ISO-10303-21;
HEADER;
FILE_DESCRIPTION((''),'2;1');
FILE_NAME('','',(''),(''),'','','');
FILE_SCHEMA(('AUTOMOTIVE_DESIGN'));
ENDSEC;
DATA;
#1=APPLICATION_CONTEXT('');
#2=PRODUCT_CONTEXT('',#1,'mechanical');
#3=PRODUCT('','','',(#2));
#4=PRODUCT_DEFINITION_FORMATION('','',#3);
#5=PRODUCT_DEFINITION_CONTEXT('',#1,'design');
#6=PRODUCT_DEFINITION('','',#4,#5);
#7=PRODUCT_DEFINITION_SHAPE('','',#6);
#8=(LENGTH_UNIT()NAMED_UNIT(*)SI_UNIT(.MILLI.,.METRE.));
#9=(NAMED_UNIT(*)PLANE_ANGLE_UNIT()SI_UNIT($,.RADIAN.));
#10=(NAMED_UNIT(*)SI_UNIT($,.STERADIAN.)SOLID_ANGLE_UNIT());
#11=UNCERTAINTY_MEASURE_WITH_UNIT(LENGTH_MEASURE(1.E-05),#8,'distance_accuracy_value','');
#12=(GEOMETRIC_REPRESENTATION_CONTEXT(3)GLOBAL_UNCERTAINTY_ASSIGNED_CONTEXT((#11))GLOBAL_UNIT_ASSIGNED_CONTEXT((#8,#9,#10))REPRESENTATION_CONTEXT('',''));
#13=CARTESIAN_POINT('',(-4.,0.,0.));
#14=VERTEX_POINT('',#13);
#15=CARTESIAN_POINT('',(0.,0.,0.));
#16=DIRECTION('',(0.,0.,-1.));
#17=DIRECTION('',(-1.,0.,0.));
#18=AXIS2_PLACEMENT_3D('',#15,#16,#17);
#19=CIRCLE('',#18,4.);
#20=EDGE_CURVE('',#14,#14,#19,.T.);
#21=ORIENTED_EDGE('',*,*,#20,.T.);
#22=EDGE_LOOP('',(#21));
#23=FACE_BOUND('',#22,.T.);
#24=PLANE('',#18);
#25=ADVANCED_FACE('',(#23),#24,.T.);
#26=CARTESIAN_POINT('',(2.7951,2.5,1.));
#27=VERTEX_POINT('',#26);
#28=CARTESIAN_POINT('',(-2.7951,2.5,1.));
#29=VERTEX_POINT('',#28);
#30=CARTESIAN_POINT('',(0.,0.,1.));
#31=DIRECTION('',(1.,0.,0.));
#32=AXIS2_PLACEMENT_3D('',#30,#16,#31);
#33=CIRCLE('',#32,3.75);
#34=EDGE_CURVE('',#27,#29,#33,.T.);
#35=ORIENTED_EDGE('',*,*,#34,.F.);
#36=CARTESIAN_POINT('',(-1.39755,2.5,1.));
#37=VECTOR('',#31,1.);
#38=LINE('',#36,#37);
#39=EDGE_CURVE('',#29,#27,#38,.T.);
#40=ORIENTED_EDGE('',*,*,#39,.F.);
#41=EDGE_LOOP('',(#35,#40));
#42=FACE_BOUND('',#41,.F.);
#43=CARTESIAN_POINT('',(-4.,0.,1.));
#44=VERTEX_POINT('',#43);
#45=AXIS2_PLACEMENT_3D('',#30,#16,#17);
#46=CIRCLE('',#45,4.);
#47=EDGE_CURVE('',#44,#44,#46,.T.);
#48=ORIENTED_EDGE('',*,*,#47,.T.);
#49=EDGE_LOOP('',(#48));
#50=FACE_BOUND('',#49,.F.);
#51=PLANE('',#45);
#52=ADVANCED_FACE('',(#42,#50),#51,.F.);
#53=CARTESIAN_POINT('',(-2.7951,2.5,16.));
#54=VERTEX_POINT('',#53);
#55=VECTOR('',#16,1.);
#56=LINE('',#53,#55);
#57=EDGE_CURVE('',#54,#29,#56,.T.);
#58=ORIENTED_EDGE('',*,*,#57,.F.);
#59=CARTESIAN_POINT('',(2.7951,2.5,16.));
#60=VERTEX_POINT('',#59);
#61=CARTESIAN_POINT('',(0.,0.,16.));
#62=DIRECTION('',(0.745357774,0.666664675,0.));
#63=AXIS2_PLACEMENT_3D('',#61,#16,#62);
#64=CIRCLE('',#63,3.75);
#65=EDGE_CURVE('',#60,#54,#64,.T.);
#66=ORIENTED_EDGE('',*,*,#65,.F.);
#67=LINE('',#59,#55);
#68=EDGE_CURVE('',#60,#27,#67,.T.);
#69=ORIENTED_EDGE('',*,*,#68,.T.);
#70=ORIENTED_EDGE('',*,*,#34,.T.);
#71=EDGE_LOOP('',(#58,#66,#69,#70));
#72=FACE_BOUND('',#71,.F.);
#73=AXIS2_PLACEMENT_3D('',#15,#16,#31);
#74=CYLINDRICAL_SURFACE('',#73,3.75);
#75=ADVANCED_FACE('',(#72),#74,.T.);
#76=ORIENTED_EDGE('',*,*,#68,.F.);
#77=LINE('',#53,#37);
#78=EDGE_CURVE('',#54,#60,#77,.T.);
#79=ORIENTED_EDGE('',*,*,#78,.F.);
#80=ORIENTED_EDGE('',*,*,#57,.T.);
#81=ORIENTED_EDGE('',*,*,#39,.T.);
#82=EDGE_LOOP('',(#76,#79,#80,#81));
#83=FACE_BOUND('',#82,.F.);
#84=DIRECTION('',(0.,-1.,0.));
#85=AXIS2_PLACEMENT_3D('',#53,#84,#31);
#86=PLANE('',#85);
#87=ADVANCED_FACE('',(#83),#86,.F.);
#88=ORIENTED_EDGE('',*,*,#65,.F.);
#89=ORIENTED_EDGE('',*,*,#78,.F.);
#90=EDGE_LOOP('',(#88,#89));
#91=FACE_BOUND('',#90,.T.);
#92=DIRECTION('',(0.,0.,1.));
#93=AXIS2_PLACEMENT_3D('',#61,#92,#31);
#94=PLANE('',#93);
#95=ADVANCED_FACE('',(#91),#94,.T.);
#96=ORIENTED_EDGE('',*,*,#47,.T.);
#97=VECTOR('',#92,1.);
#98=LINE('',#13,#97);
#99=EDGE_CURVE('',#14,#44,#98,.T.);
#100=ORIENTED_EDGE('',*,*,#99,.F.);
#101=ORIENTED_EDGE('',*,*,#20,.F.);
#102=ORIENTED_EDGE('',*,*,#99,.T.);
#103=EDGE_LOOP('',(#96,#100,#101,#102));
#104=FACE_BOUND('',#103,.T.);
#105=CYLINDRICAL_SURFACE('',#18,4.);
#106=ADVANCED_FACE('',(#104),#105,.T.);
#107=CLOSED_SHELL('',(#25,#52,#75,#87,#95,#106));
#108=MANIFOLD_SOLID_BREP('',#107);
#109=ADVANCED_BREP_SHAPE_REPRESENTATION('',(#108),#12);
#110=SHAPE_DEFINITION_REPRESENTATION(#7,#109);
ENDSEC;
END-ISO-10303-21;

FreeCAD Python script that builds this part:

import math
import FreeCAD as App
import Part
import Sketcher

V = App.Vector

doc = App.newDocument("Part")
body = doc.addObject("PartDesign::Body", "Body")

# Sketch on XY plane
sketch1 = doc.addObject("Sketcher::SketchObject", "Sketch")
body.addObject(sketch1)
sketch1.AttachmentSupport = (doc.XY_Plane, [""])
sketch1.MapMode = "FlatFace"
sketch1.addGeometry(Part.Circle(V(0, 0, 0), V(0, 0, 1), 3.8), False)
sketch1.addConstraint([
    Sketcher.Constraint("Coincident", 0, 3, -1, 1),
    Sketcher.Constraint("Diameter", 0, 7.5),
])
pad1 = doc.addObject("PartDesign::Pad", "Pad")
body.addObject(pad1)
pad1.Profile = sketch1
pad1.Length = 16

# Sketch on XY plane
sketch2 = doc.addObject("Sketcher::SketchObject", "Sketch001")
body.addObject(sketch2)
sketch2.AttachmentSupport = (doc.XY_Plane, [""])
sketch2.MapMode = "FlatFace"
sketch2.AttachmentOffset = App.Placement(V(0, 0, 16), App.Rotation())
sketch2.addGeometry([
    Part.LineSegment(V(-2.8, 2.5, 0), V(2.8, 2.5, 0)),
    Part.ArcOfCircle(Part.Circle(V(0, 0, 0), V(0, 0, 1), 3.8), math.radians(42), math.radians(138)),
], False)
sketch2.addConstraint([
    Sketcher.Constraint("Coincident", 0, 1, 1, 2),
    Sketcher.Constraint("Coincident", 1, 1, 0, 2),
    Sketcher.Constraint("Horizontal", 0),
    Sketcher.Constraint("Coincident", 1, 3, -1, 1),
    Sketcher.Constraint("DistanceY", -1, 1, 0, 1, 2.5),
    Sketcher.Constraint("Radius", 1, 3.75),
])
pocket1 = doc.addObject("PartDesign::Pocket", "Pocket")
body.addObject(pocket1)
pocket1.Profile = sketch2
pocket1.Type = "ThroughAll"

# Sketch on XY plane
sketch3 = doc.addObject("Sketcher::SketchObject", "Sketch002")
body.addObject(sketch3)
sketch3.AttachmentSupport = (doc.XY_Plane, [""])
sketch3.MapMode = "FlatFace"
sketch3.addGeometry(Part.Circle(V(0, 0, 0), V(0, 0, 1), 4), False)
sketch3.addConstraint([
    Sketcher.Constraint("Coincident", 0, 3, -1, 1),
    Sketcher.Constraint("Diameter", 0, 8.0),
])
pad2 = doc.addObject("PartDesign::Pad", "Pad001")
body.addObject(pad2)
pad2.Profile = sketch3
pad2.Length = 1

doc.recompute()
